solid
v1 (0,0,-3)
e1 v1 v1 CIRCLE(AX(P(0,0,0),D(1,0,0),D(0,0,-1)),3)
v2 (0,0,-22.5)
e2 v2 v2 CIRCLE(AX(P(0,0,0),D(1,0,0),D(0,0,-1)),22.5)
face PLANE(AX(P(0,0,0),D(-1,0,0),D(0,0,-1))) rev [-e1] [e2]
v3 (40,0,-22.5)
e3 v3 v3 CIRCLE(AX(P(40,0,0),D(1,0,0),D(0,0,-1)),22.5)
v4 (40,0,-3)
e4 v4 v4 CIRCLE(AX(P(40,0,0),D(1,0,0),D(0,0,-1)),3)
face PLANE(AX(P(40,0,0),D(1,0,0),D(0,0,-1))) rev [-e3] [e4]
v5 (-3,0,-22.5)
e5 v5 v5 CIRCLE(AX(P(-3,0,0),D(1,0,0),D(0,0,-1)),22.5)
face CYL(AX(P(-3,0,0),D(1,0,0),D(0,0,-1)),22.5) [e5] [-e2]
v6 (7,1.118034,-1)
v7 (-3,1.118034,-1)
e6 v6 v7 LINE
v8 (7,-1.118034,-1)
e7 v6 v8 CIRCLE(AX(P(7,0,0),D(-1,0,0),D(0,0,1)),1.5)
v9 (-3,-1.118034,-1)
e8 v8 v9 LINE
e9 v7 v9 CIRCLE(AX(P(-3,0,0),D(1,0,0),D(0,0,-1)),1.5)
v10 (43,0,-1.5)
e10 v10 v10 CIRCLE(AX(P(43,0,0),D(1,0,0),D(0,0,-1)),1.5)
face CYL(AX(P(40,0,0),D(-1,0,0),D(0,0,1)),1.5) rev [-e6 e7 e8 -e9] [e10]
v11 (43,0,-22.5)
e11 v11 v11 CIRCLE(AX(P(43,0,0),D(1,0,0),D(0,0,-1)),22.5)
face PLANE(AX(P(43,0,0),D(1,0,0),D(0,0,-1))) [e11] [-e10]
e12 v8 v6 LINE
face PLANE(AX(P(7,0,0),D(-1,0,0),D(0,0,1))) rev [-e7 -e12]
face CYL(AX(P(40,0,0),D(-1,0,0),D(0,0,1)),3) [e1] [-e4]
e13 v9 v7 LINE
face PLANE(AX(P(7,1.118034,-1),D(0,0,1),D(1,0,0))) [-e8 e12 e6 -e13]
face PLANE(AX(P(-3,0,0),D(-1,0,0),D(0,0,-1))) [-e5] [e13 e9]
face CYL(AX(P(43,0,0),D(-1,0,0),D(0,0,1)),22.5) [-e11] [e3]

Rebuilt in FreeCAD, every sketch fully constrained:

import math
import FreeCAD as App
import Part
import Sketcher
from FreeCAD import Vector
Q = App.Units.Quantity

doc = App.newDocument("Part")
params = doc.addObject("Spreadsheet::Sheet", "Params")
for row, (alias, value) in enumerate([
    ("sketch1_diameter", "6 mm"),
    ("sketch1_diameter2", "3 mm"),
    ("pad1_length", "40 mm"),
    ("sketch2_diameter", "45 mm"),
    ("sketch2_diameter2", "3 mm"),
    ("pad2_length", "3 mm"),
    ("sketch3_radius", "1.5 mm"),
    ("pad3_length", "10 mm"),
], start=1):
    params.set(f"A{row}", alias)
    params.set(f"B{row}", "=" + value)
    params.setAlias(f"B{row}", alias)

body = doc.addObject("PartDesign::Body", "Body")

sketch1 = body.newObject("Sketcher::SketchObject", "Sketch")
sketch1.AttachmentSupport = (doc.getObject("YZ_Plane"), [""])
sketch1.MapMode = "FlatFace"
sketch1.addGeometry(Part.Circle(Vector(0, 0, 0), Vector(0, 0, 1), 3), False)
sketch1.addGeometry(Part.Circle(Vector(0, 0, 0), Vector(0, 0, 1), 1.5), False)
sketch1.addConstraint(Sketcher.Constraint("Coincident", 0, 3, -1, 1))
sketch1.addConstraint(Sketcher.Constraint("Coincident", 1, 3, -1, 1))
sketch1.addConstraint(Sketcher.Constraint("Diameter", 0, Q("6 mm")))
sketch1.addConstraint(Sketcher.Constraint("Diameter", 1, Q("3 mm")))
sketch1.setExpression("Constraints[2]", "Params.sketch1_diameter")
sketch1.setExpression("Constraints[3]", "Params.sketch1_diameter2")
pad1 = body.newObject("PartDesign::Pad", "Pad")
pad1.Profile = sketch1
pad1.setExpression("Length", "Params.pad1_length")

sketch2 = body.newObject("Sketcher::SketchObject", "Sketch001")
sketch2.AttachmentSupport = (doc.getObject("YZ_Plane"), [""])
sketch2.MapMode = "FlatFace"
sketch2.AttachmentOffset = App.Placement(Vector(0, 0, 40), App.Rotation())
sketch2.addGeometry(Part.Circle(Vector(0, 0, 0), Vector(0, 0, 1), 22.5), False)
sketch2.addGeometry(Part.Circle(Vector(0, 0, 0), Vector(0, 0, 1), 1.5), False)
sketch2.addConstraint(Sketcher.Constraint("Coincident", 0, 3, -1, 1))
sketch2.addConstraint(Sketcher.Constraint("Coincident", 1, 3, -1, 1))
sketch2.addConstraint(Sketcher.Constraint("Diameter", 0, Q("45 mm")))
sketch2.addConstraint(Sketcher.Constraint("Diameter", 1, Q("3 mm")))
sketch2.setExpression("Constraints[2]", "Params.sketch2_diameter")
sketch2.setExpression("Constraints[3]", "Params.sketch2_diameter2")
pad2 = body.newObject("PartDesign::Pad", "Pad001")
pad2.Profile = sketch2
pad2.setExpression("Length", "Params.pad2_length")
doc.recompute()

datumplane = body.newObject("PartDesign::Plane", "DatumPlane")
datumplane.AttachmentSupport = (doc.getObject("YZ_Plane"), [""])
datumplane.MapMode = "FlatFace"
datumplane.AttachmentOffset = App.Placement(Vector(0, 0, 20), App.Rotation())
mirrored = body.newObject("PartDesign::Mirrored", "Mirrored")
mirrored.Originals = [pad2]
mirrored.MirrorPlane = (datumplane, [""])
body.Tip = mirrored

sketch3 = body.newObject("Sketcher::SketchObject", "Sketch002")
sketch3.AttachmentSupport = (doc.getObject("YZ_Plane"), [""])
sketch3.MapMode = "FlatFace"
sketch3.AttachmentOffset = App.Placement(Vector(0, 0, -3), App.Rotation())
sketch3.addGeometry(Part.LineSegment(Vector(-1.1, -1, 0), Vector(1.1, -1, 0)), False)
sketch3.addGeometry(Part.ArcOfCircle(Part.Circle(Vector(0, 0, 0), Vector(0, 0, 1), 1.5), math.radians(-138), math.radians(-42)), False)
sketch3.addConstraint(Sketcher.Constraint("Coincident", 0, 1, 1, 1))
sketch3.addConstraint(Sketcher.Constraint("Coincident", 1, 2, 0, 2))
sketch3.addConstraint(Sketcher.Constraint("Horizontal", 0))
sketch3.addConstraint(Sketcher.Constraint("Coincident", 1, 3, -1, 1))
sketch3.addConstraint(Sketcher.Constraint("Radius", 1, Q("1.5 mm")))
sketch3.addConstraint(Sketcher.Constraint("DistanceY", 0, 1, -1, 1, Q("1 mm")))
sketch3.setExpression("Constraints[4]", "Params.sketch3_radius")
pad3 = body.newObject("PartDesign::Pad", "Pad002")
pad3.Profile = sketch3
pad3.setExpression("Length", "Params.pad3_length")

doc.recompute()
